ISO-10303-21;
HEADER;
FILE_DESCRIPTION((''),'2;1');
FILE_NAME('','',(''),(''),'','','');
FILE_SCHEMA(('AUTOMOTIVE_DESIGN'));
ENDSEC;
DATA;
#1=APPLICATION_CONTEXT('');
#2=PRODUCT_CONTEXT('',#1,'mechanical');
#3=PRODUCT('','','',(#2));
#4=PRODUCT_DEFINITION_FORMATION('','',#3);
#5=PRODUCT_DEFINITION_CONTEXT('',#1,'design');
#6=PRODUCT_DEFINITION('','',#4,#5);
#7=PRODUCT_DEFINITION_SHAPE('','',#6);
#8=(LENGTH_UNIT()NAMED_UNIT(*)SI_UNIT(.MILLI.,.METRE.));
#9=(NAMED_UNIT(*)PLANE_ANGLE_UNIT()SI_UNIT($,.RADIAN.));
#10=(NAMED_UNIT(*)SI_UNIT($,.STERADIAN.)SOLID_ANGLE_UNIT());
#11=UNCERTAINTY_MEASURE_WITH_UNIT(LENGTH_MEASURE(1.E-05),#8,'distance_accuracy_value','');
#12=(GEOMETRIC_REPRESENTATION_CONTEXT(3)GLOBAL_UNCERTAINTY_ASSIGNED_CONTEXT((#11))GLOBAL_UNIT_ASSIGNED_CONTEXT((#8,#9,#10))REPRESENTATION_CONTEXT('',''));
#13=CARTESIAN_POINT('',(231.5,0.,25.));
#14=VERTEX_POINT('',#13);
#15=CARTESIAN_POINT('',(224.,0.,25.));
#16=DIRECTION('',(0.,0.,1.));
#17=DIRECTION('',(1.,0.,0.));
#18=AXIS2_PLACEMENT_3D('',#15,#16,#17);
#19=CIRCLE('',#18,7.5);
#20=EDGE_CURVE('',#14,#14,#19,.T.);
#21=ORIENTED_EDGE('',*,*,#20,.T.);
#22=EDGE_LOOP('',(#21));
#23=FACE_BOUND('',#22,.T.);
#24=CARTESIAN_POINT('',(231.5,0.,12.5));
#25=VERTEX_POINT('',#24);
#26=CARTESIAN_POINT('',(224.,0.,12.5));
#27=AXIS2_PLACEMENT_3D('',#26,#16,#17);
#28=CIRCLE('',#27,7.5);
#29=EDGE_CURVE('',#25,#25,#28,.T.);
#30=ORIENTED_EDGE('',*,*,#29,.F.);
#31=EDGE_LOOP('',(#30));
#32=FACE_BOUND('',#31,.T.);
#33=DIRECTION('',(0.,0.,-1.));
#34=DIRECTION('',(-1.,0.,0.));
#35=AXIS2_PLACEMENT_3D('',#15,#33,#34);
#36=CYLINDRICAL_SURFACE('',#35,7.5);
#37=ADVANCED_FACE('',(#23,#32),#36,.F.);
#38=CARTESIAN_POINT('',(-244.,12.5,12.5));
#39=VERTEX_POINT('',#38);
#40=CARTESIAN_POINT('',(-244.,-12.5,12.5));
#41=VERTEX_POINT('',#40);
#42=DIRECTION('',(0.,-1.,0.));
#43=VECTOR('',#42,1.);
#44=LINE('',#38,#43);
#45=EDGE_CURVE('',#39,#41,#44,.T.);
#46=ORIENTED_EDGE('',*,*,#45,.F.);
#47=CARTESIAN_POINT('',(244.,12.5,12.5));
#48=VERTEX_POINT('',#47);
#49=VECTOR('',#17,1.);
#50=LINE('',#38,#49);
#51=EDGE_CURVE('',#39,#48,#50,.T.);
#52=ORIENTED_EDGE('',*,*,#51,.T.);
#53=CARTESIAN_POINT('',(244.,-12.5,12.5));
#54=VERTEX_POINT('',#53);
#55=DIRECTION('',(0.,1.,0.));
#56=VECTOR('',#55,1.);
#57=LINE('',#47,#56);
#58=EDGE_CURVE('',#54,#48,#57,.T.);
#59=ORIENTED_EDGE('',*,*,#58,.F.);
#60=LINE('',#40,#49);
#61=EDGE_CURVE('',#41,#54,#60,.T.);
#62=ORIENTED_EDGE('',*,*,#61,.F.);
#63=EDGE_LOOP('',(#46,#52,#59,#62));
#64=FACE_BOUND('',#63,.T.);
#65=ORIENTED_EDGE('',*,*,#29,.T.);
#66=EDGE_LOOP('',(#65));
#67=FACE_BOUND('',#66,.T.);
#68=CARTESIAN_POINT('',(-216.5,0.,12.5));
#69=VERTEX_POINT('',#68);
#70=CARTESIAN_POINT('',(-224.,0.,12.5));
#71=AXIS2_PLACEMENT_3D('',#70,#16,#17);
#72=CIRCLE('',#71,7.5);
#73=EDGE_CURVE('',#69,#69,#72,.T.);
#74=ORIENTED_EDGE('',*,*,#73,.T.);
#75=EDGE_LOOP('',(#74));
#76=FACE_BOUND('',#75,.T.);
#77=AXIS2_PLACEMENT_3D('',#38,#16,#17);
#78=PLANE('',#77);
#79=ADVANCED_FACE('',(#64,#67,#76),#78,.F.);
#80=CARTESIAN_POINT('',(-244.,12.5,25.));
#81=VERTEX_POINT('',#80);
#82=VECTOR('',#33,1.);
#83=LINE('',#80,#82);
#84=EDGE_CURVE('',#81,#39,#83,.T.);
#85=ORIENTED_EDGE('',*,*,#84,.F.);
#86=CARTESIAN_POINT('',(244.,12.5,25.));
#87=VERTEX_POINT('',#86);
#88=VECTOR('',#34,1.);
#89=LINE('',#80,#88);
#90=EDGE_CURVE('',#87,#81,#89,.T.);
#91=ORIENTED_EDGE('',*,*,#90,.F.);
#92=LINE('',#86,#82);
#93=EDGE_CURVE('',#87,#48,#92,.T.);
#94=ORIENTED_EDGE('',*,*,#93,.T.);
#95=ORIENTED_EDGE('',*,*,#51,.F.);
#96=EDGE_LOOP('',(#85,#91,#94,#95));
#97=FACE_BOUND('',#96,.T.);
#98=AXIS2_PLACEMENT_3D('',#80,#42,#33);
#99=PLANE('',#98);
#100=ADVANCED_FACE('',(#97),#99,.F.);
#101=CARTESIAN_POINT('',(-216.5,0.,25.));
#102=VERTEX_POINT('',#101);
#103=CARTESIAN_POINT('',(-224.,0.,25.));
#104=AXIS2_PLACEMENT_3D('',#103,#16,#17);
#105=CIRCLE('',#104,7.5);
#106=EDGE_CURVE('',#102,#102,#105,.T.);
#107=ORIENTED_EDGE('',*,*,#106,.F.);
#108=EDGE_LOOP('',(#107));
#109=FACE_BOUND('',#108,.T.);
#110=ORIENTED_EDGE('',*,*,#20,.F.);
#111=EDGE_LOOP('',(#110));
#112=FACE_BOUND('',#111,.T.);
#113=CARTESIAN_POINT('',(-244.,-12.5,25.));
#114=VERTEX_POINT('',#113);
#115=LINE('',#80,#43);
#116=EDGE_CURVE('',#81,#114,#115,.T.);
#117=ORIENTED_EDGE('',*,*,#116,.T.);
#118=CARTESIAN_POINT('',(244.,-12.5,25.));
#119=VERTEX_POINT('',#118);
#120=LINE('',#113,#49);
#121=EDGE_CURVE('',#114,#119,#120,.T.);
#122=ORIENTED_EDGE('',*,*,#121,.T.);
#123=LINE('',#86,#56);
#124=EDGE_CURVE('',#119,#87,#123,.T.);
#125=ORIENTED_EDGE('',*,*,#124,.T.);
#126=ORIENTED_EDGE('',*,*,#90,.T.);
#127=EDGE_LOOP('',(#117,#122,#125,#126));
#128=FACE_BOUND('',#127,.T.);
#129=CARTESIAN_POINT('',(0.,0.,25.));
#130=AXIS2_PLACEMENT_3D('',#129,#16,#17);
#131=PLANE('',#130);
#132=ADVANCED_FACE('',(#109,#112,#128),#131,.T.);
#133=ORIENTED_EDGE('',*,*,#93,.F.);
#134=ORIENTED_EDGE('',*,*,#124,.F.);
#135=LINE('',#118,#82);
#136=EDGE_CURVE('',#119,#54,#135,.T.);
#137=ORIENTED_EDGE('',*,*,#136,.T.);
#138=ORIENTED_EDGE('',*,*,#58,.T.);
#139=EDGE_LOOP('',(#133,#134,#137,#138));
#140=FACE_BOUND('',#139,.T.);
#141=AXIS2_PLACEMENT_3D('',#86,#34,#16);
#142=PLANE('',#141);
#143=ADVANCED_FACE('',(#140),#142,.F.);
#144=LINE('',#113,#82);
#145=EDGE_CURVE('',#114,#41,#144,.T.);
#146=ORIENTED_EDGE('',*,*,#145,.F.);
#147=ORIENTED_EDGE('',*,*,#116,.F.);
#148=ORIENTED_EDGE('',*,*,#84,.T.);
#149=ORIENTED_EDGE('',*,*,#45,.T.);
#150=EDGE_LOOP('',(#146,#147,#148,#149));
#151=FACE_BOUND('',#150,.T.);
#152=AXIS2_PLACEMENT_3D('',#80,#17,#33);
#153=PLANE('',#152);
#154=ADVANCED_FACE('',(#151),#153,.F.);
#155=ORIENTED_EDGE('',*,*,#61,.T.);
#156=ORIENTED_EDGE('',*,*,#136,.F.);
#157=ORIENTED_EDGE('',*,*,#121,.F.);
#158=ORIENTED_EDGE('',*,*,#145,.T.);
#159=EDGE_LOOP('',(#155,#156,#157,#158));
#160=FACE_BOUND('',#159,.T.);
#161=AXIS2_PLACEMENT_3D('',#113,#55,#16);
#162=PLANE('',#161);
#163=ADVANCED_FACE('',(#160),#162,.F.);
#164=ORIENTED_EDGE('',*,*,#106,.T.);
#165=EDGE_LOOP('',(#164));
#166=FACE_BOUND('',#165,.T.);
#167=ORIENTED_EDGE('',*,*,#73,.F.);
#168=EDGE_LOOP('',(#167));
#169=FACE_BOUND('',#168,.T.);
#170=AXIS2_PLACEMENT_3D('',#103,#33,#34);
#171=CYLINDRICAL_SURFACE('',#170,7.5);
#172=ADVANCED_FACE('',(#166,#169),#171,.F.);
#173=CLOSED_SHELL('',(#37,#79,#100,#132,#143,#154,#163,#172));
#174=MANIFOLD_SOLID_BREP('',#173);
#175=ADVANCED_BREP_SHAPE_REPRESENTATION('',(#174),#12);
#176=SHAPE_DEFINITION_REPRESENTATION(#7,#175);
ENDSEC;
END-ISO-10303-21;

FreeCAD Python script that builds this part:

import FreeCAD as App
import Part
import Sketcher
from FreeCAD import Vector
Q = App.Units.Quantity


def add_polygon(sketch, points):
    """Adds a closed chain of lines whose ends are joined by coincident constraints."""
    first, n = sketch.GeometryCount, len(points)
    for a, b in zip(points, points[1:] + points[:1]):
        sketch.addGeometry(Part.LineSegment(App.Vector(*a, 0), App.Vector(*b, 0)), False)
    for i in range(n):
        sketch.addConstraint(Sketcher.Constraint("Coincident", first + i, 2, first + (i + 1) % n, 1))

doc = App.newDocument("Part")
body = doc.addObject("PartDesign::Body", "Body")

# Sketch on XY plane
sketch1 = body.newObject("Sketcher::SketchObject", "Sketch")
sketch1.AttachmentSupport = (doc.getObject("XY_Plane"), [""])
sketch1.MapMode = "FlatFace"
add_polygon(sketch1, [(-244, 12.5), (-244, -12.5), (244, -12.5), (244, 12.5)])  # lines 0-3
sketch1.addGeometry(Part.Circle(Vector(-224, 0, 0), Vector(0, 0, 1), 7.5), False)  # 4
sketch1.addGeometry(Part.Circle(Vector(224, 0, 0), Vector(0, 0, 1), 7.5), False)  # 5
sketch1.addConstraint([
    Sketcher.Constraint("Vertical", 0),
    Sketcher.Constraint("Horizontal", 1),
    Sketcher.Constraint("Vertical", 2),
    Sketcher.Constraint("Horizontal", 3),
    Sketcher.Constraint("Equal", 4, 5),
    Sketcher.Constraint("Symmetric", 4, 3, 5, 3, -1, 1),
    Sketcher.Constraint("Symmetric", 0, 2, 2, 2, -1, 1),
    Sketcher.Constraint("PointOnObject", 4, 3, -1),
    Sketcher.Constraint("Diameter", 4, Q("15 mm")),
    Sketcher.Constraint("DistanceX", 1, 1, 1, 2, Q("488 mm")),
    Sketcher.Constraint("DistanceY", 0, 2, 0, 1, Q("25 mm")),
    Sketcher.Constraint("DistanceX", 4, 3, -1, 1, Q("224 mm")),
])
pad1 = body.newObject("PartDesign::Pad", "Pad")
pad1.Profile = sketch1
pad1.Length = 25

# Sketch on YZ plane
sketch2 = body.newObject("Sketcher::SketchObject", "Sketch001")
sketch2.AttachmentSupport = (doc.getObject("YZ_Plane"), [""])
sketch2.MapMode = "FlatFace"
sketch2.AttachmentOffset = App.Placement(Vector(0, 0, 244), App.Rotation())
add_polygon(sketch2, [(12.5, 12.5), (-12.5, 12.5), (-12.5, 0), (12.5, 0)])  # lines 0-3
sketch2.addConstraint([
    Sketcher.Constraint("Horizontal", 0),
    Sketcher.Constraint("Vertical", 1),
    Sketcher.Constraint("Horizontal", 2),
    Sketcher.Constraint("Vertical", 3),
    Sketcher.Constraint("Symmetric", 1, 2, 2, 2, -1, 1),
    Sketcher.Constraint("DistanceX", 0, 2, 0, 1, Q("25 mm")),
    Sketcher.Constraint("DistanceY", 1, 2, 1, 1, Q("12.5 mm")),
])
pocket1 = body.newObject("PartDesign::Pocket", "Pocket")
pocket1.Profile = sketch2
pocket1.Type = "ThroughAll"
pocket1.Midplane = True

doc.recompute()
